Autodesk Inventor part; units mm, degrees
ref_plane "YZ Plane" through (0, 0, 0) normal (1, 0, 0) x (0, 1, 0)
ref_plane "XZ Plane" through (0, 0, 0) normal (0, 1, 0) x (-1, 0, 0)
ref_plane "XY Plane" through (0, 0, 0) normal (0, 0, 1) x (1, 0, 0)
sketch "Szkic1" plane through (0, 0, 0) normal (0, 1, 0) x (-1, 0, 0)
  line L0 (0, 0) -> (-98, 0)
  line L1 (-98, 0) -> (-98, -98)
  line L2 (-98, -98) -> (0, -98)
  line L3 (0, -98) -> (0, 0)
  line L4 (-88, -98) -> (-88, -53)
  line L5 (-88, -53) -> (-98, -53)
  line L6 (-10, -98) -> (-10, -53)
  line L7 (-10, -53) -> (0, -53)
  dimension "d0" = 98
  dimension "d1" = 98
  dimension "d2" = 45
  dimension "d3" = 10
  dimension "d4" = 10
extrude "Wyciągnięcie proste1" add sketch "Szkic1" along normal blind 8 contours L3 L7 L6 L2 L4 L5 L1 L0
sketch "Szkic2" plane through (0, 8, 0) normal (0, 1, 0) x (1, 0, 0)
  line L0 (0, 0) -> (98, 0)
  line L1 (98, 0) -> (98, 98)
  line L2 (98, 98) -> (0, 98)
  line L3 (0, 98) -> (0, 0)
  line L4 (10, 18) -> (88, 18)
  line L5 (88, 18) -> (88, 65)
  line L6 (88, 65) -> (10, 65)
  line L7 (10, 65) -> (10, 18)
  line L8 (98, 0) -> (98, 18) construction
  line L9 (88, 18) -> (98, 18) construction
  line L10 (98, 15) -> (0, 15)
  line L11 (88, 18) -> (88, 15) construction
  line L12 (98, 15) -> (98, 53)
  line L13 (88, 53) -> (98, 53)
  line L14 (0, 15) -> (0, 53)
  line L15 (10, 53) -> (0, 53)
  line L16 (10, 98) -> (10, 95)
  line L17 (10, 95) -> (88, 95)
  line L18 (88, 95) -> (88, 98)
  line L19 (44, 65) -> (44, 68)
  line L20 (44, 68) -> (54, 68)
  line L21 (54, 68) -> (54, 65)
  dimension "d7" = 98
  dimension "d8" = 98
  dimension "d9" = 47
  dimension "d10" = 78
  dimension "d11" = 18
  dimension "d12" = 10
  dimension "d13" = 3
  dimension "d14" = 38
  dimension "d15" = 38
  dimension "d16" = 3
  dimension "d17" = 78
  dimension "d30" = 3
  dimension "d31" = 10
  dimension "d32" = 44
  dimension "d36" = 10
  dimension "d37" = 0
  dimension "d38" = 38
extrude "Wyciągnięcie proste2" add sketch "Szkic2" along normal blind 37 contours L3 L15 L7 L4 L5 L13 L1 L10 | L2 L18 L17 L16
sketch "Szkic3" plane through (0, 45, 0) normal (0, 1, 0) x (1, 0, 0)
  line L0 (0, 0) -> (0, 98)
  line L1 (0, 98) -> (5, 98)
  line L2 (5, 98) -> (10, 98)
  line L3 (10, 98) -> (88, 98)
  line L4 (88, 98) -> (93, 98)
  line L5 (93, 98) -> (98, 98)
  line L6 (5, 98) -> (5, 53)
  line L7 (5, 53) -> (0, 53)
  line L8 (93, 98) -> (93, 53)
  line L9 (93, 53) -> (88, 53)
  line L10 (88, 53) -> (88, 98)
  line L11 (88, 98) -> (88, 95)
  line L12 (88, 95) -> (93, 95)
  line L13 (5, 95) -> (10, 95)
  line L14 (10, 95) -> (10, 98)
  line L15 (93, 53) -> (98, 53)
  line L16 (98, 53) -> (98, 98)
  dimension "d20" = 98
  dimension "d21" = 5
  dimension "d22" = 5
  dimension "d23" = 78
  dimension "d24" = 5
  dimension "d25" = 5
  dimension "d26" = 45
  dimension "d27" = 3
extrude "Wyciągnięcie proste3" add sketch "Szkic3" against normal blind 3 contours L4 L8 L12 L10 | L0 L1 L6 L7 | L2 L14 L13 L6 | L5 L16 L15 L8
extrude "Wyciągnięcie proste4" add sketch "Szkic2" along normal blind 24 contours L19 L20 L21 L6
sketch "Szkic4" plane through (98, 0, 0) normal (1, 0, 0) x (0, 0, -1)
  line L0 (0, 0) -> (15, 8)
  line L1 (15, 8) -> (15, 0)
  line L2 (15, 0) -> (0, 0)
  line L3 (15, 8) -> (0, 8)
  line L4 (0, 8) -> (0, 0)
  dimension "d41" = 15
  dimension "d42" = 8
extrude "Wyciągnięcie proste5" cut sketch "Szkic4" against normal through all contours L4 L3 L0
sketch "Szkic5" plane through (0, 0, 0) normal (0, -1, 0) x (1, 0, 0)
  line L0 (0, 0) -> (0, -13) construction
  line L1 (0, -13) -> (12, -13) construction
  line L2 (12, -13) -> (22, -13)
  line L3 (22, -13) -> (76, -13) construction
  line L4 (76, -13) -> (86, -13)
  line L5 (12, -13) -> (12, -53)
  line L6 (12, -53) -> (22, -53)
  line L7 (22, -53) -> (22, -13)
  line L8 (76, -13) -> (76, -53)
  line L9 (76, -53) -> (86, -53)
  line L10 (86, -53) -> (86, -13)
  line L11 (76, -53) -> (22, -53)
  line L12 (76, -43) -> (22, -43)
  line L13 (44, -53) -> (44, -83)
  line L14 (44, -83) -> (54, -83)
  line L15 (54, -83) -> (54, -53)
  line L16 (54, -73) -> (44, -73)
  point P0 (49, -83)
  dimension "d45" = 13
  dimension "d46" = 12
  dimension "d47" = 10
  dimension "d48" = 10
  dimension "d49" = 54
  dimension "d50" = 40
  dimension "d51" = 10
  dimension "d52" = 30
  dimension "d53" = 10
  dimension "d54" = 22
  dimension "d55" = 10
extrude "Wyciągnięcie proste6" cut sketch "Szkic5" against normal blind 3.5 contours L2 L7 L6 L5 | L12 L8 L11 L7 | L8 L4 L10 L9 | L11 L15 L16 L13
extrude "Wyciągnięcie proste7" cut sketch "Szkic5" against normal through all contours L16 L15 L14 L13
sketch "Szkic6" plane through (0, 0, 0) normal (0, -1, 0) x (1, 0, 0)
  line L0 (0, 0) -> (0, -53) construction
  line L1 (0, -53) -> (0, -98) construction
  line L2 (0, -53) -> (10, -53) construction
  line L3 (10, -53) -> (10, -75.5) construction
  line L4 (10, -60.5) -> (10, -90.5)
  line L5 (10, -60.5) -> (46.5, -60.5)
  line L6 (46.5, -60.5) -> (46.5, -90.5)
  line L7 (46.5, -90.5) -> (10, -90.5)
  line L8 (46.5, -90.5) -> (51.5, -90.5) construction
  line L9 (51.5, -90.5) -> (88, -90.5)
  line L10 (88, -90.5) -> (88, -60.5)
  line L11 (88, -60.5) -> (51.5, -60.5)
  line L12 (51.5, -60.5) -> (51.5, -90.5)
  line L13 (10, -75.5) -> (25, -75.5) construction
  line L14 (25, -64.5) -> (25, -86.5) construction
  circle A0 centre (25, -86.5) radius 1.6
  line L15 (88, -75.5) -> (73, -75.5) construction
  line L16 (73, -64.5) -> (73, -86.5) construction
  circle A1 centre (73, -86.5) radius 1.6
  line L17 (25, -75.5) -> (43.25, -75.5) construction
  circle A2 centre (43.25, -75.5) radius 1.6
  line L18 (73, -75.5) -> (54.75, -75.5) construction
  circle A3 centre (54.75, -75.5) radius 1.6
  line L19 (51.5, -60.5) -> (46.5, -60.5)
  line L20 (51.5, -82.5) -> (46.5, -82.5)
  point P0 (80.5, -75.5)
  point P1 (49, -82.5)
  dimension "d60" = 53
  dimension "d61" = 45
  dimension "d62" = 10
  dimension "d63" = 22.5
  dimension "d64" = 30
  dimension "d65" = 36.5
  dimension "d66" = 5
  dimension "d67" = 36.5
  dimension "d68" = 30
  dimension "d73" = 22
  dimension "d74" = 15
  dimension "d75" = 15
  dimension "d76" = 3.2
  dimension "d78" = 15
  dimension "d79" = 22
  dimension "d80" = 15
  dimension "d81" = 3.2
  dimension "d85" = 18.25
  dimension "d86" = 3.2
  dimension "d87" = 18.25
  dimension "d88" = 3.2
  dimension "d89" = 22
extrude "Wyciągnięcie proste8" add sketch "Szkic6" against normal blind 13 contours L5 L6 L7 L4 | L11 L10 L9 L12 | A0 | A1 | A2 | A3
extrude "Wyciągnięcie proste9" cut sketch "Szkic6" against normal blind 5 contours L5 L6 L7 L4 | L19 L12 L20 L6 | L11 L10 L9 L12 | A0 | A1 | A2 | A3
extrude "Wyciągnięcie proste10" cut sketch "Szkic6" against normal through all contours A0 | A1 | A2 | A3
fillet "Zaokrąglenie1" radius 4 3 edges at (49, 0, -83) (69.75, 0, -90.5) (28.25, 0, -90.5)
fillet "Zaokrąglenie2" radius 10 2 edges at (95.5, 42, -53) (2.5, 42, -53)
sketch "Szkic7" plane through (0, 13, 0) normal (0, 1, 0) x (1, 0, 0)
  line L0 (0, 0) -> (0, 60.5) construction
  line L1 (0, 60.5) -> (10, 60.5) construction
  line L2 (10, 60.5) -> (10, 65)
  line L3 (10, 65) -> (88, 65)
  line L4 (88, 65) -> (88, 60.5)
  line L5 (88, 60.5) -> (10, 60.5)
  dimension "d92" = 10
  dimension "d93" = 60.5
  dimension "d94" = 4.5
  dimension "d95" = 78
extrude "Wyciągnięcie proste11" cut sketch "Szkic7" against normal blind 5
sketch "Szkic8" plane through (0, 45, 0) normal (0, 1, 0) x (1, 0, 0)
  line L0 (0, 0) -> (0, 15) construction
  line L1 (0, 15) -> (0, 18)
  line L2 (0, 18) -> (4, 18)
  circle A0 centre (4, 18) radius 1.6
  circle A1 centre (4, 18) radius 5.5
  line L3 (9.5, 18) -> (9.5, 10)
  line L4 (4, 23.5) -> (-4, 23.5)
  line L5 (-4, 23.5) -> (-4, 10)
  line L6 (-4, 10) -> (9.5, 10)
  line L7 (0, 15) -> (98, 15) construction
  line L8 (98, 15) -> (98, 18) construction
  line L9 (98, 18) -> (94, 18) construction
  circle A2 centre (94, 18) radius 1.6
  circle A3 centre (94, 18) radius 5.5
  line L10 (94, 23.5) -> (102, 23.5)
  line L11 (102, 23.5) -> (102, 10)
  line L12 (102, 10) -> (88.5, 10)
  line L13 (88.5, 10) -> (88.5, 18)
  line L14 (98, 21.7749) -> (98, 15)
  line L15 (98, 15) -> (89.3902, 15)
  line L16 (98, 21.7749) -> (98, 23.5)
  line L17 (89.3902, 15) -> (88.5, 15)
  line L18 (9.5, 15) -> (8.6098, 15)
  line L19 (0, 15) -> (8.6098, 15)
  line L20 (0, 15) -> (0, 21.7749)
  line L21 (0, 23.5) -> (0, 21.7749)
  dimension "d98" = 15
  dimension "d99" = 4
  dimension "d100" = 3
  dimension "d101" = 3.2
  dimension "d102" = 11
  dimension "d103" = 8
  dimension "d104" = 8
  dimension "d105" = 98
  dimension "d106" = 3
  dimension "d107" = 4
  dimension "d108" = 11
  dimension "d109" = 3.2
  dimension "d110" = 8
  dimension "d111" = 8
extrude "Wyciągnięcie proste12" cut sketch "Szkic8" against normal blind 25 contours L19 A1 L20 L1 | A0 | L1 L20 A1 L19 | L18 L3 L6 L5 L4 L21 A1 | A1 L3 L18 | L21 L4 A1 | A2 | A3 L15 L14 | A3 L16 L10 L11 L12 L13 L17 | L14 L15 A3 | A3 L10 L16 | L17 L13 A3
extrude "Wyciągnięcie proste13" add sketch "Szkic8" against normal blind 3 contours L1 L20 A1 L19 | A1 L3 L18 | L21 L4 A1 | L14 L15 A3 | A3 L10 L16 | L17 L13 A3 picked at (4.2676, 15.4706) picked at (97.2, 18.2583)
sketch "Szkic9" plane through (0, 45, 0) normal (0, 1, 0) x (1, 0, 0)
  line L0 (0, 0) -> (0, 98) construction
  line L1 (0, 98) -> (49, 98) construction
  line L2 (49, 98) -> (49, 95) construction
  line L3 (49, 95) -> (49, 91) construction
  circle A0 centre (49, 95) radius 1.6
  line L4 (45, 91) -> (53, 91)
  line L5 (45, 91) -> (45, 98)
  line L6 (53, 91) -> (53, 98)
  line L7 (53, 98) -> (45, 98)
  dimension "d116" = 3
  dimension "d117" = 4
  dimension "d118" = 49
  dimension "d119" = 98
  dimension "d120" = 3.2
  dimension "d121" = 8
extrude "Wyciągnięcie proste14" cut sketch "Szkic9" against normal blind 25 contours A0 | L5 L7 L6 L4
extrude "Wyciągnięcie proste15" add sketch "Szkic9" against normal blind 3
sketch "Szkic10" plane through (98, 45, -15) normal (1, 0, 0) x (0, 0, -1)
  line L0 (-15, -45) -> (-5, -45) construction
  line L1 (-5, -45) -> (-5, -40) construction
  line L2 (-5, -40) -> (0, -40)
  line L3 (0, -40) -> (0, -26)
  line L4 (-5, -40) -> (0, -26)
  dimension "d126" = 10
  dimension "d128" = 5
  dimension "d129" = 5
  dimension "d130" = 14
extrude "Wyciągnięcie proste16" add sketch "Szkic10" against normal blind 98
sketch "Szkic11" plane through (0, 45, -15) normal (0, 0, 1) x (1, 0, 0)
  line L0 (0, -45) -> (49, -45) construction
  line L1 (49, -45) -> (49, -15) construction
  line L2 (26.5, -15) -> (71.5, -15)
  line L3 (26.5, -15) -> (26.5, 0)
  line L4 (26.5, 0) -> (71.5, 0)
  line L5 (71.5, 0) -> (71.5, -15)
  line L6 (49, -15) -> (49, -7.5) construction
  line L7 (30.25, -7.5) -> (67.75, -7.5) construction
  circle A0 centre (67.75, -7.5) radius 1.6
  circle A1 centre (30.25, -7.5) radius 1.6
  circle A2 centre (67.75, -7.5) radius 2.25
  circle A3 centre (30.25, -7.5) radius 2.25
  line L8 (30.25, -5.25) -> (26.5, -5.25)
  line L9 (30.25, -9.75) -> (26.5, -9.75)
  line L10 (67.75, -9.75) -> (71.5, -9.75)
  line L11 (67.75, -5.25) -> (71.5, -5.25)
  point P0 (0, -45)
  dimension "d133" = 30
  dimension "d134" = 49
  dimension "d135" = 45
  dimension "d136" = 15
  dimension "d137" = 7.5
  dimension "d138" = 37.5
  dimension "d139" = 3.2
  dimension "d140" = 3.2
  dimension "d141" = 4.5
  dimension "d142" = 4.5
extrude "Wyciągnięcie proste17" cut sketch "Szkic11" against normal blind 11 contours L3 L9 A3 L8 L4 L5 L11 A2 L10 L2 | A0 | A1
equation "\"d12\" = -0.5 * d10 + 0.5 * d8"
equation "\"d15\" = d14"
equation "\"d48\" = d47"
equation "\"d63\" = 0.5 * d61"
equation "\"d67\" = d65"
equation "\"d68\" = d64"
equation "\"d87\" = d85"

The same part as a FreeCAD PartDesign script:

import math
import FreeCAD as App
import Part
import Sketcher


def edges_at(feature, points):
    """Names of the edges that pass closest to the given points."""
    edges = feature.Shape.Edges
    near = lambda p: min(range(len(edges)), key=lambda i: edges[i].distToShape(Part.Vertex(*p))[0])
    return sorted({f"Edge{near(p) + 1}" for p in points})


def add_polygon(sketch, points):
    """Adds a closed chain of lines whose ends are joined by coincident constraints."""
    first, n = sketch.GeometryCount, len(points)
    for a, b in zip(points, points[1:] + points[:1]):
        sketch.addGeometry(Part.LineSegment(App.Vector(*a, 0), App.Vector(*b, 0)), False)
    for i in range(n):
        sketch.addConstraint(Sketcher.Constraint("Coincident", first + i, 2, first + (i + 1) % n, 1))

doc = App.newDocument("Part")
body = doc.addObject("PartDesign::Body", "Body")

# Sketch on XZ plane
sketch1 = body.newObject("Sketcher::SketchObject", "Sketch")
sketch1.AttachmentSupport = (doc.getObject("XZ_Plane"), [""])
sketch1.MapMode = "FlatFace"
add_polygon(sketch1, [(0, -53), (0, 0), (98, 0), (98, -53), (88, -53), (88, -98), (10, -98), (10, -53)])  # lines 0-7
sketch1.addConstraint([
    Sketcher.Constraint("Vertical", 0),
    Sketcher.Constraint("Horizontal", 1),
    Sketcher.Constraint("Vertical", 2),
    Sketcher.Constraint("Horizontal", 3),
    Sketcher.Constraint("Vertical", 4),
    Sketcher.Constraint("Horizontal", 5),
    Sketcher.Constraint("Vertical", 6),
    Sketcher.Constraint("Horizontal", 7),
    Sketcher.Constraint("Coincident", 0, 2, -1, 1),
    Sketcher.Constraint("Horizontal", 3, 2, 6, 2),
    Sketcher.Constraint("Equal", 3, 7),
    Sketcher.Constraint("DistanceX", 1, 1, 1, 2, 98.0),
    Sketcher.Constraint("DistanceX", 3, 2, 3, 1, 10.0),
    Sketcher.Constraint("DistanceY", 4, 2, 4, 1, 45.0),
    Sketcher.Constraint("DistanceY", 4, 2, -1, 1, 98.0),
])
pad1 = body.newObject("PartDesign::Pad", "Pad")
pad1.Profile = sketch1
pad1.Length = 8
pad1.Reversed = True

# Sketch on XZ plane
sketch2 = body.newObject("Sketcher::SketchObject", "Sketch001")
sketch2.AttachmentSupport = (doc.getObject("XZ_Plane"), [""])
sketch2.MapMode = "FlatFace"
sketch2.AttachmentOffset = App.Placement(App.Vector(0, 0, -8), App.Rotation())
add_polygon(sketch2, [(0, -53), (0, -15), (98, -15), (98, -53), (88, -53), (88, -18), (10, -18), (10, -53)])  # lines 0-7
add_polygon(sketch2, [(88, -98), (10, -98), (10, -95), (88, -95)])  # lines 8-11
sketch2.addConstraint([
    Sketcher.Constraint("Vertical", 0),
    Sketcher.Constraint("Horizontal", 1),
    Sketcher.Constraint("Vertical", 2),
    Sketcher.Constraint("Horizontal", 3),
    Sketcher.Constraint("Vertical", 4),
    Sketcher.Constraint("Horizontal", 5),
    Sketcher.Constraint("Vertical", 6),
    Sketcher.Constraint("Horizontal", 7),
    Sketcher.Constraint("Horizontal", 8),
    Sketcher.Constraint("Vertical", 9),
    Sketcher.Constraint("Horizontal", 10),
    Sketcher.Constraint("Vertical", 11),
    Sketcher.Constraint("PointOnObject", 0, 2, -2),
    Sketcher.Constraint("Horizontal", 3, 2, 6, 2),
    Sketcher.Constraint("Vertical", 6, 2, 8, 2),
    Sketcher.Constraint("Vertical", 4, 2, 10, 2),
    Sketcher.Constraint("Equal", 3, 7),
    Sketcher.Constraint("DistanceX", 1, 1, 1, 2, 98.0),
    Sketcher.Constraint("DistanceX", 3, 2, 3, 1, 10.0),
    Sketcher.Constraint("DistanceY", 0, 1, 0, 2, 38.0),
    Sketcher.Constraint("DistanceY", 9, 1, 9, 2, 3.0),
    Sketcher.Constraint("DistanceY", 4, 2, -1, 1, 18.0),
    Sketcher.Constraint("DistanceY", 8, 2, -1, 1, 98.0),
    Sketcher.Constraint("DistanceY", 4, 2, 1, 2, 3.0),
])
pad2 = body.newObject("PartDesign::Pad", "Pad001")
pad2.Profile = sketch2
pad2.Length = 37
pad2.Reversed = True

# Sketch on XZ plane
sketch3 = body.newObject("Sketcher::SketchObject", "Sketch002")
sketch3.AttachmentSupport = (doc.getObject("XZ_Plane"), [""])
sketch3.MapMode = "FlatFace"
sketch3.AttachmentOffset = App.Placement(App.Vector(0, 0, -45), App.Rotation())
add_polygon(sketch3, [(88, -98), (88, -95), (93, -95), (93, -53), (98, -53), (98, -98)])  # lines 0-5
add_polygon(sketch3, [(0, -98), (0, -53), (5, -53), (5, -95), (10, -95), (10, -98)])  # lines 6-11
sketch3.addConstraint([
    Sketcher.Constraint("Vertical", 0),
    Sketcher.Constraint("Horizontal", 1),
    Sketcher.Constraint("Vertical", 2),
    Sketcher.Constraint("Horizontal", 3),
    Sketcher.Constraint("Vertical", 4),
    Sketcher.Constraint("Horizontal", 5),
    Sketcher.Constraint("Vertical", 6),
    Sketcher.Constraint("Horizontal", 7),
    Sketcher.Constraint("Vertical", 8),
    Sketcher.Constraint("Horizontal", 9),
    Sketcher.Constraint("Vertical", 10),
    Sketcher.Constraint("Horizontal", 11),
    Sketcher.Constraint("PointOnObject", 6, 2, -2),
    Sketcher.Constraint("Horizontal", 3, 2, 6, 2),
    Sketcher.Constraint("Horizontal", 1, 2, 8, 2),
    Sketcher.Constraint("Horizontal", 5, 2, 10, 2),
    Sketcher.Constraint("Equal", 1, 3),
    Sketcher.Constraint("Equal", 3, 7),
    Sketcher.Constraint("Equal", 7, 9),
    Sketcher.Constraint("DistanceX", 1, 1, 1, 2, 5.0),
    Sketcher.Constraint("DistanceY", 0, 1, 0, 2, 3.0),
    Sketcher.Constraint("DistanceY", 4, 2, 4, 1, 45.0),
    Sketcher.Constraint("DistanceX", -1, 1, 3, 2, 98.0),
    Sketcher.Constraint("DistanceY", 4, 2, -1, 1, 98.0),
])
pad3 = body.newObject("PartDesign::Pad", "Pad002")
pad3.Profile = sketch3
pad3.Length = 3

# Sketch on XZ plane
sketch4 = body.newObject("Sketcher::SketchObject", "Sketch003")
sketch4.AttachmentSupport = (doc.getObject("XZ_Plane"), [""])
sketch4.MapMode = "FlatFace"
sketch4.AttachmentOffset = App.Placement(App.Vector(0, 0, -8), App.Rotation())
add_polygon(sketch4, [(44, -68), (44, -65), (54, -65), (54, -68)])  # lines 0-3
sketch4.addConstraint([
    Sketcher.Constraint("Vertical", 0),
    Sketcher.Constraint("Horizontal", 1),
    Sketcher.Constraint("Vertical", 2),
    Sketcher.Constraint("Horizontal", 3),
    Sketcher.Constraint("DistanceX", 1, 1, 1, 2, 10.0),
    Sketcher.Constraint("DistanceY", 0, 1, 0, 2, 3.0),
    Sketcher.Constraint("DistanceX", -1, 1, 0, 2, 44.0),
    Sketcher.Constraint("DistanceY", 0, 2, -1, 1, 65.0),
])
pad4 = body.newObject("PartDesign::Pad", "Pad003")
pad4.Profile = sketch4
pad4.Length = 24
pad4.Reversed = True

# Sketch on YZ plane
sketch5 = body.newObject("Sketcher::SketchObject", "Sketch004")
sketch5.AttachmentSupport = (doc.getObject("YZ_Plane"), [""])
sketch5.MapMode = "FlatFace"
sketch5.AttachmentOffset = App.Placement(App.Vector(0, 0, 98), App.Rotation())
add_polygon(sketch5, [(8, 0), (0, 0), (8, -15)])  # lines 0-2
sketch5.addConstraint([
    Sketcher.Constraint("Horizontal", 0),
    Sketcher.Constraint("Vertical", 2),
    Sketcher.Constraint("Coincident", 0, 2, -1, 1),
    Sketcher.Constraint("DistanceX", 0, 2, 0, 1, 8.0),
    Sketcher.Constraint("DistanceY", 2, 1, 2, 2, 15.0),
])
pocket1 = body.newObject("PartDesign::Pocket", "Pocket")
pocket1.Profile = sketch5
pocket1.Type = "ThroughAll"

# Sketch on XZ plane
sketch6 = body.newObject("Sketcher::SketchObject", "Sketch005")
sketch6.AttachmentSupport = (doc.getObject("XZ_Plane"), [""])
sketch6.MapMode = "FlatFace"
add_polygon(sketch6, [(22, -13), (12, -13), (12, -53), (44, -53), (44, -73), (54, -73), (54, -53), (86, -53), (86, -13), (76, -13), (76, -43), (22, -43)])  # lines 0-11
sketch6.addConstraint([
    Sketcher.Constraint("Horizontal", 0),
    Sketcher.Constraint("Vertical", 1),
    Sketcher.Constraint("Horizontal", 2),
    Sketcher.Constraint("Vertical", 3),
    Sketcher.Constraint("Horizontal", 4),
    Sketcher.Constraint("Vertical", 5),
    Sketcher.Constraint("Horizontal", 6),
    Sketcher.Constraint("Vertical", 7),
    Sketcher.Constraint("Horizontal", 8),
    Sketcher.Constraint("Vertical", 9),
    Sketcher.Constraint("Horizontal", 10),
    Sketcher.Constraint("Vertical", 11),
    Sketcher.Constraint("Horizontal", 2, 2, 5, 2),
    Sketcher.Constraint("Horizontal", 0, 2, 7, 2),
    Sketcher.Constraint("Equal", 0, 4),
    Sketcher.Constraint("Equal", 2, 6),
    Sketcher.Constraint("Equal", 4, 8),
    Sketcher.Constraint("DistanceX", 0, 2, 0, 1, 10.0),
    Sketcher.Constraint("DistanceX", 10, 2, 10, 1, 54.0),
    Sketcher.Constraint("DistanceY", 1, 2, 1, 1, 40.0),
    Sketcher.Constraint("DistanceY", 9, 2, 9, 1, 30.0),
    Sketcher.Constraint("DistanceX", -1, 1, 0, 2, 12.0),
    Sketcher.Constraint("DistanceY", 0, 2, -1, 1, 13.0),
    Sketcher.Constraint("DistanceY", 3, 2, 10, 2, 30.0),
])
pocket2 = body.newObject("PartDesign::Pocket", "Pocket001")
pocket2.Profile = sketch6
pocket2.Length = 3.5

# Sketch on XZ plane
sketch7 = body.newObject("Sketcher::SketchObject", "Sketch006")
sketch7.AttachmentSupport = (doc.getObject("XZ_Plane"), [""])
sketch7.MapMode = "FlatFace"
add_polygon(sketch7, [(54, -73), (44, -73), (44, -83), (54, -83)])  # lines 0-3
sketch7.addConstraint([
    Sketcher.Constraint("Horizontal", 0),
    Sketcher.Constraint("Vertical", 1),
    Sketcher.Constraint("Horizontal", 2),
    Sketcher.Constraint("Vertical", 3),
    Sketcher.Constraint("Equal", 2, 1),
    Sketcher.Constraint("DistanceX", 0, 2, 0, 1, 10.0),
    Sketcher.Constraint("DistanceX", -1, 1, 2, 2, 54.0),
    Sketcher.Constraint("DistanceY", 0, 2, -1, 1, 73.0),
])
pocket3 = body.newObject("PartDesign::Pocket", "Pocket002")
pocket3.Profile = sketch7
pocket3.Type = "ThroughAll"

# Sketch on XZ plane
sketch8 = body.newObject("Sketcher::SketchObject", "Sketch007")
sketch8.AttachmentSupport = (doc.getObject("XZ_Plane"), [""])
sketch8.MapMode = "FlatFace"
add_polygon(sketch8, [(46, -60), (10, -60), (10, -90), (46, -90)])  # lines 0-3
add_polygon(sketch8, [(88, -60), (52, -60), (52, -90), (88, -90)])  # lines 4-7
sketch8.addConstraint([
    Sketcher.Constraint("Horizontal", 0),
    Sketcher.Constraint("Vertical", 1),
    Sketcher.Constraint("Horizontal", 2),
    Sketcher.Constraint("Vertical", 3),
    Sketcher.Constraint("Horizontal", 4),
    Sketcher.Constraint("Vertical", 5),
    Sketcher.Constraint("Horizontal", 6),
    Sketcher.Constraint("Vertical", 7),
    Sketcher.Constraint("Horizontal", 3, 2, 4, 2),
    Sketcher.Constraint("Horizontal", 2, 2, 5, 2),
    Sketcher.Constraint("Equal", 2, 4),
    Sketcher.Constraint("DistanceY", 1, 2, 1, 1, 30.0),
    Sketcher.Constraint("DistanceX", 0, 2, 0, 1, 36.5),
    Sketcher.Constraint("DistanceX", -1, 1, 0, 2, 10.0),
    Sketcher.Constraint("DistanceX", 3, 2, 4, 2, 5.0),
    Sketcher.Constraint("DistanceY", 0, 2, -1, 1, 60.5),
])
pad5 = body.newObject("PartDesign::Pad", "Pad004")
pad5.Profile = sketch8
pad5.Length = 13
pad5.Reversed = True

# Sketch on XZ plane
sketch9 = body.newObject("Sketcher::SketchObject", "Sketch008")
sketch9.AttachmentSupport = (doc.getObject("XZ_Plane"), [""])
sketch9.MapMode = "FlatFace"
add_polygon(sketch9, [(10, -60), (10, -90), (46, -90), (46, -82), (52, -82), (52, -90), (88, -90), (88, -60)])  # lines 0-7
sketch9.addConstraint([
    Sketcher.Constraint("Vertical", 0),
    Sketcher.Constraint("Horizontal", 1),
    Sketcher.Constraint("Vertical", 2),
    Sketcher.Constraint("Horizontal", 3),
    Sketcher.Constraint("Vertical", 4),
    Sketcher.Constraint("Horizontal", 5),
    Sketcher.Constraint("Vertical", 6),
    Sketcher.Constraint("Horizontal", 7),
    Sketcher.Constraint("Horizontal", 1, 2, 4, 2),
    Sketcher.Constraint("Equal", 1, 5),
    Sketcher.Constraint("DistanceX", 3, 1, 3, 2, 5.0),
    Sketcher.Constraint("DistanceY", 0, 2, 0, 1, 30.0),
    Sketcher.Constraint("DistanceX", 1, 1, 1, 2, 36.5),
    Sketcher.Constraint("DistanceX", -1, 1, 0, 2, 10.0),
    Sketcher.Constraint("DistanceY", 3, 2, 6, 2, 22.0),
    Sketcher.Constraint("DistanceY", 0, 2, -1, 1, 90.5),
])
pocket4 = body.newObject("PartDesign::Pocket", "Pocket003")
pocket4.Profile = sketch9
pocket4.Length = 5

# Sketch on XZ plane
sketch10 = body.newObject("Sketcher::SketchObject", "Sketch009")
sketch10.AttachmentSupport = (doc.getObject("XZ_Plane"), [""])
sketch10.MapMode = "FlatFace"
sketch10.addGeometry([
    Part.Circle(App.Vector(25, -86.5, 0), App.Vector(0, 0, 1), 1.6),
    Part.Circle(App.Vector(73, -86.5, 0), App.Vector(0, 0, 1), 1.6),
    Part.Circle(App.Vector(43.2, -75.5, 0), App.Vector(0, 0, 1), 1.6),
    Part.Circle(App.Vector(54.8, -75.5, 0), App.Vector(0, 0, 1), 1.6),
], False)
sketch10.addConstraint([
    Sketcher.Constraint("Equal", 0, 1),
    Sketcher.Constraint("Equal", 1, 2),
    Sketcher.Constraint("Equal", 2, 3),
    Sketcher.Constraint("Horizontal", 0, 3, 1, 3),
    Sketcher.Constraint("Horizontal", 2, 3, 3, 3),
    Sketcher.Constraint("Diameter", 0, 3.2),
    Sketcher.Constraint("DistanceX", 0, 3, 2, 3, 18.25),
    Sketcher.Constraint("DistanceX", 3, 3, 1, 3, 18.25),
    Sketcher.Constraint("DistanceX", -1, 1, 0, 3, 25.0),
    Sketcher.Constraint("DistanceX", -1, 1, 1, 3, 73.0),
    Sketcher.Constraint("DistanceY", 0, 3, 2, 3, 11.0),
    Sketcher.Constraint("DistanceY", 0, 3, -1, 1, 86.5),
])
pocket5 = body.newObject("PartDesign::Pocket", "Pocket004")
pocket5.Profile = sketch10
pocket5.Type = "ThroughAll"
doc.recompute()

fillet = body.newObject("PartDesign::Fillet", "Fillet")
fillet.Base = (pocket5, edges_at(pocket5, [(49, 0, -83), (69.75, 0, -90.5), (28.25, 0, -90.5)]))
fillet.Radius = 4
doc.recompute()

fillet2 = body.newObject("PartDesign::Fillet", "Fillet001")
fillet2.Base = (fillet, edges_at(fillet, [(95.5, 42, -53), (2.5, 42, -53)]))
fillet2.Radius = 10

# Sketch on XZ plane
sketch11 = body.newObject("Sketcher::SketchObject", "Sketch010")
sketch11.AttachmentSupport = (doc.getObject("XZ_Plane"), [""])
sketch11.MapMode = "FlatFace"
sketch11.AttachmentOffset = App.Placement(App.Vector(0, 0, -13), App.Rotation())
add_polygon(sketch11, [(10, -65), (10, -60.5), (88, -60.5), (88, -65)])  # lines 0-3
sketch11.addConstraint([
    Sketcher.Constraint("Vertical", 0),
    Sketcher.Constraint("Horizontal", 1),
    Sketcher.Constraint("Vertical", 2),
    Sketcher.Constraint("Horizontal", 3),
    Sketcher.Constraint("DistanceX", 1, 1, 1, 2, 78.0),
    Sketcher.Constraint("DistanceY", 0, 1, 0, 2, 4.5),
    Sketcher.Constraint("DistanceX", -1, 1, 0, 2, 10.0),
    Sketcher.Constraint("DistanceY", 0, 2, -1, 1, 60.5),
])
pocket6 = body.newObject("PartDesign::Pocket", "Pocket005")
pocket6.Profile = sketch11
pocket6.Length = 5
pocket6.Reversed = True

# Sketch on XZ plane
sketch12 = body.newObject("Sketcher::SketchObject", "Sketch011")
sketch12.AttachmentSupport = (doc.getObject("XZ_Plane"), [""])
sketch12.MapMode = "FlatFace"
sketch12.AttachmentOffset = App.Placement(App.Vector(0, 0, -45), App.Rotation())
sketch12.addGeometry([
    Part.ArcOfCircle(Part.Circle(App.Vector(4, -18, 0), App.Vector(0, 0, 1), 6), math.radians(-90), math.radians(0)),  # 0
    Part.LineSegment(App.Vector(4, -24, 0), App.Vector(-4, -24, 0)),  # 1
    Part.LineSegment(App.Vector(-4, -24, 0), App.Vector(-4, -10, 0)),  # 2
    Part.LineSegment(App.Vector(-4, -10, 0), App.Vector(10, -10, 0)),  # 3
    Part.LineSegment(App.Vector(10, -10, 0), App.Vector(10, -18, 0)),  # 4
    Part.ArcOfCircle(Part.Circle(App.Vector(94, -18, 0), App.Vector(0, 0, 1), 6), math.radians(180), math.radians(270)),  # 5
    Part.LineSegment(App.Vector(88, -18, 0), App.Vector(88, -10, 0)),  # 6
    Part.LineSegment(App.Vector(88, -10, 0), App.Vector(102, -10, 0)),  # 7
    Part.LineSegment(App.Vector(102, -10, 0), App.Vector(102, -24, 0)),  # 8
    Part.LineSegment(App.Vector(102, -24, 0), App.Vector(94, -24, 0)),  # 9
], False)
sketch12.addConstraint([
    Sketcher.Constraint("Tangent", 0, 1, 1, 1),
    Sketcher.Constraint("Coincident", 1, 2, 2, 1),
    Sketcher.Constraint("Coincident", 2, 2, 3, 1),
    Sketcher.Constraint("Coincident", 3, 2, 4, 1),
    Sketcher.Constraint("Tangent", 4, 2, 0, 2),
    Sketcher.Constraint("Tangent", 5, 1, 6, 1),
    Sketcher.Constraint("Coincident", 6, 2, 7, 1),
    Sketcher.Constraint("Coincident", 7, 2, 8, 1),
    Sketcher.Constraint("Coincident", 8, 2, 9, 1),
    Sketcher.Constraint("Tangent", 9, 2, 5, 2),
    Sketcher.Constraint("Horizontal", 1),
    Sketcher.Constraint("Vertical", 2),
    Sketcher.Constraint("Horizontal", 3),
    Sketcher.Constraint("Vertical", 4),
    Sketcher.Constraint("Vertical", 6),
    Sketcher.Constraint("Horizontal", 7),
    Sketcher.Constraint("Vertical", 8),
    Sketcher.Constraint("Horizontal", 9),
    Sketcher.Constraint("Equal", 0, 5),
    Sketcher.Constraint("Horizontal", 0, 3, 5, 3),
    Sketcher.Constraint("Horizontal", 3, 2, 6, 2),
    Sketcher.Constraint("Equal", 3, 7),
    Sketcher.Constraint("Equal", 7, 2),
    Sketcher.Constraint("Radius", 0, 5.5),
    Sketcher.Constraint("DistanceX", 1, 2, 1, 1, 8.0),
    Sketcher.Constraint("DistanceX", -1, 1, 0, 3, 4.0),
    Sketcher.Constraint("DistanceX", 1, 2, 5, 3, 98.0),
    Sketcher.Constraint("DistanceY", 0, 3, -1, 1, 18.0),
])
pocket7 = body.newObject("PartDesign::Pocket", "Pocket006")
pocket7.Profile = sketch12
pocket7.Length = 25
pocket7.Reversed = True

# Sketch on XZ plane
sketch13 = body.newObject("Sketcher::SketchObject", "Sketch012")
sketch13.AttachmentSupport = (doc.getObject("XZ_Plane"), [""])
sketch13.MapMode = "FlatFace"
sketch13.AttachmentOffset = App.Placement(App.Vector(0, 0, -45), App.Rotation())
sketch13.addGeometry([
    Part.LineSegment(App.Vector(0, -18, 0), App.Vector(0, -15, 0)),  # 0
    Part.LineSegment(App.Vector(0, -15, 0), App.Vector(9.5, -15, 0)),  # 1
    Part.LineSegment(App.Vector(9.5, -15, 0), App.Vector(9.5, -18, 0)),  # 2
    Part.ArcOfCircle(Part.Circle(App.Vector(4, -18, 0), App.Vector(0, 0, 1), 5.5), math.radians(-90), math.radians(0)),  # 3
    Part.LineSegment(App.Vector(4, -23.5, 0), App.Vector(0, -23.5, 0)),  # 4
    Part.LineSegment(App.Vector(0, -23.5, 0), App.Vector(0, -18, 0)),  # 5
    Part.Circle(App.Vector(4, -18, 0), App.Vector(0, 0, 1), 1.6),  # 6
    Part.LineSegment(App.Vector(98, -15, 0), App.Vector(98, -23.5, 0)),  # 7
    Part.LineSegment(App.Vector(98, -23.5, 0), App.Vector(94, -23.5, 0)),  # 8
    Part.ArcOfCircle(Part.Circle(App.Vector(94, -18, 0), App.Vector(0, 0, 1), 5.5), math.radians(180), math.radians(270)),  # 9
    Part.LineSegment(App.Vector(88.5, -18, 0), App.Vector(88.5, -15, 0)),  # 10
    Part.LineSegment(App.Vector(88.5, -15, 0), App.Vector(98, -15, 0)),  # 11
    Part.Circle(App.Vector(94, -18, 0), App.Vector(0, 0, 1), 1.6),  # 12
], False)
sketch13.addConstraint([
    Sketcher.Constraint("Coincident", 0, 2, 1, 1),
    Sketcher.Constraint("Coincident", 1, 2, 2, 1),
    Sketcher.Constraint("Tangent", 2, 2, 3, 2),
    Sketcher.Constraint("Tangent", 3, 1, 4, 1),
    Sketcher.Constraint("Coincident", 4, 2, 5, 1),
    Sketcher.Constraint("Coincident", 5, 2, 0, 1),
    Sketcher.Constraint("Coincident", 7, 2, 8, 1),
    Sketcher.Constraint("Tangent", 8, 2, 9, 2),
    Sketcher.Constraint("Tangent", 9, 1, 10, 1),
    Sketcher.Constraint("Coincident", 10, 2, 11, 1),
    Sketcher.Constraint("Coincident", 11, 2, 7, 1),
    Sketcher.Constraint("Vertical", 0),
    Sketcher.Constraint("Horizontal", 1),
    Sketcher.Constraint("Vertical", 2),
    Sketcher.Constraint("Horizontal", 4),
    Sketcher.Constraint("Vertical", 5),
    Sketcher.Constraint("Vertical", 7),
    Sketcher.Constraint("Horizontal", 8),
    Sketcher.Constraint("Vertical", 10),
    Sketcher.Constraint("Horizontal", 11),
    Sketcher.Constraint("Coincident", 6, 3, 3, 3),
    Sketcher.Constraint("Coincident", 12, 3, 9, 3),
    Sketcher.Constraint("Equal", 3, 9),
    Sketcher.Constraint("Equal", 6, 12),
    Sketcher.Constraint("PointOnObject", 0, 2, -2),
    Sketcher.Constraint("Horizontal", 6, 3, 9, 3),
    Sketcher.Constraint("Horizontal", 2, 2, 5, 2),
    Sketcher.Constraint("Horizontal", 1, 2, 10, 2),
    Sketcher.Constraint("Equal", 4, 8),
    Sketcher.Constraint("Diameter", 6, 3.2),
    Sketcher.Constraint("Radius", 3, 5.5),
    Sketcher.Constraint("DistanceX", 4, 2, 4, 1, 4.0),
    Sketcher.Constraint("DistanceY", 0, 1, 0, 2, 3.0),
    Sketcher.Constraint("DistanceY", 0, 2, -1, 1, 15.0),
    Sketcher.Constraint("DistanceX", -1, 1, 7, 2, 98.0),
])
pad6 = body.newObject("PartDesign::Pad", "Pad005")
pad6.Profile = sketch13
pad6.Length = 3

# Sketch on XZ plane
sketch14 = body.newObject("Sketcher::SketchObject", "Sketch013")
sketch14.AttachmentSupport = (doc.getObject("XZ_Plane"), [""])
sketch14.MapMode = "FlatFace"
sketch14.AttachmentOffset = App.Placement(App.Vector(0, 0, -45), App.Rotation())
add_polygon(sketch14, [(45, -98), (45, -91), (53, -91), (53, -98)])  # lines 0-3
sketch14.addConstraint([
    Sketcher.Constraint("Vertical", 0),
    Sketcher.Constraint("Horizontal", 1),
    Sketcher.Constraint("Vertical", 2),
    Sketcher.Constraint("Horizontal", 3),
    Sketcher.Constraint("DistanceX", 1, 1, 1, 2, 8.0),
    Sketcher.Constraint("DistanceY", 2, 2, -1, 1, 98.0),
    Sketcher.Constraint("DistanceY", 0, 1, 0, 2, 7.0),
    Sketcher.Constraint("DistanceX", -1, 1, 0, 2, 45.0),
])
pocket8 = body.newObject("PartDesign::Pocket", "Pocket007")
pocket8.Profile = sketch14
pocket8.Length = 25
pocket8.Reversed = True

# Sketch on XZ plane
sketch15 = body.newObject("Sketcher::SketchObject", "Sketch014")
sketch15.AttachmentSupport = (doc.getObject("XZ_Plane"), [""])
sketch15.MapMode = "FlatFace"
sketch15.AttachmentOffset = App.Placement(App.Vector(0, 0, -45), App.Rotation())
add_polygon(sketch15, [(45, -98), (45, -91), (53, -91), (53, -98)])  # lines 0-3
sketch15.addGeometry(Part.Circle(App.Vector(49, -95, 0), App.Vector(0, 0, 1), 1.6), False)  # 4
sketch15.addConstraint([
    Sketcher.Constraint("Vertical", 0),
    Sketcher.Constraint("Horizontal", 1),
    Sketcher.Constraint("Vertical", 2),
    Sketcher.Constraint("Horizontal", 3),
    Sketcher.Constraint("Diameter", 4, 3.2),
    Sketcher.Constraint("DistanceX", 1, 1, 1, 2, 8.0),
    Sketcher.Constraint("DistanceX", -1, 1, 4, 3, 49.0),
    Sketcher.Constraint("DistanceY", 2, 2, -1, 1, 98.0),
    Sketcher.Constraint("DistanceX", 0, 2, 4, 3, 4.0),
    Sketcher.Constraint("DistanceY", 4, 3, 0, 2, 4.0),
    Sketcher.Constraint("DistanceY", 2, 2, 4, 3, 3.0),
])
pad7 = body.newObject("PartDesign::Pad", "Pad006")
pad7.Profile = sketch15
pad7.Length = 3

# Sketch on YZ plane
sketch16 = body.newObject("Sketcher::SketchObject", "Sketch015")
sketch16.AttachmentSupport = (doc.getObject("YZ_Plane"), [""])
sketch16.MapMode = "FlatFace"
sketch16.AttachmentOffset = App.Placement(App.Vector(0, 0, 98), App.Rotation())
add_polygon(sketch16, [(19, -15), (5, -10), (5, -15)])  # lines 0-2
sketch16.addConstraint([
    Sketcher.Constraint("Vertical", 1),
    Sketcher.Constraint("Horizontal", 2),
    Sketcher.Constraint("DistanceX", 2, 1, 2, 2, 14.0),
    Sketcher.Constraint("DistanceY", 1, 2, 1, 1, 5.0),
    Sketcher.Constraint("DistanceX", -1, 1, 0, 2, 5.0),
    Sketcher.Constraint("DistanceY", 0, 2, -1, 1, 10.0),
])
pad8 = body.newObject("PartDesign::Pad", "Pad007")
pad8.Profile = sketch16
pad8.Length = 98
pad8.Reversed = True

# Sketch on XY plane
sketch17 = body.newObject("Sketcher::SketchObject", "Sketch016")
sketch17.AttachmentSupport = (doc.getObject("XY_Plane"), [""])
sketch17.MapMode = "FlatFace"
sketch17.AttachmentOffset = App.Placement(App.Vector(0, 0, -15), App.Rotation())
sketch17.addGeometry([
    Part.LineSegment(App.Vector(26.5, 35.2, 0), App.Vector(26.5, 30, 0)),  # 0
    Part.LineSegment(App.Vector(26.5, 30, 0), App.Vector(71.5, 30, 0)),  # 1
    Part.LineSegment(App.Vector(71.5, 30, 0), App.Vector(71.5, 35.2, 0)),  # 2
    Part.LineSegment(App.Vector(71.5, 35.2, 0), App.Vector(67.8, 35.2, 0)),  # 3
    Part.ArcOfCircle(Part.Circle(App.Vector(67.8, 37.5, 0), App.Vector(0, 0, 1), 2.2), math.radians(90), math.radians(270)),  # 4
    Part.LineSegment(App.Vector(67.8, 39.8, 0), App.Vector(71.5, 39.8, 0)),  # 5
    Part.LineSegment(App.Vector(71.5, 39.8, 0), App.Vector(71.5, 45, 0)),  # 6
    Part.LineSegment(App.Vector(71.5, 45, 0), App.Vector(26.5, 45, 0)),  # 7
    Part.LineSegment(App.Vector(26.5, 45, 0), App.Vector(26.5, 39.8, 0)),  # 8
    Part.LineSegment(App.Vector(26.5, 39.8, 0), App.Vector(30.2, 39.8, 0)),  # 9
    Part.ArcOfCircle(Part.Circle(App.Vector(30.2, 37.5, 0), App.Vector(0, 0, 1), 2.2), math.radians(-90), math.radians(90)),  # 10
    Part.LineSegment(App.Vector(30.2, 35.2, 0), App.Vector(26.5, 35.2, 0)),  # 11
    Part.Circle(App.Vector(67.8, 37.5, 0), App.Vector(0, 0, 1), 1.6),  # 12
    Part.Circle(App.Vector(30.2, 37.5, 0), App.Vector(0, 0, 1), 1.6),  # 13
], False)
sketch17.addConstraint([
    Sketcher.Constraint("Coincident", 0, 2, 1, 1),
    Sketcher.Constraint("Coincident", 1, 2, 2, 1),
    Sketcher.Constraint("Coincident", 2, 2, 3, 1),
    Sketcher.Constraint("Tangent", 3, 2, 4, 2),
    Sketcher.Constraint("Tangent", 4, 1, 5, 1),
    Sketcher.Constraint("Coincident", 5, 2, 6, 1),
    Sketcher.Constraint("Coincident", 6, 2, 7, 1),
    Sketcher.Constraint("Coincident", 7, 2, 8, 1),
    Sketcher.Constraint("Coincident", 8, 2, 9, 1),
    Sketcher.Constraint("Tangent", 9, 2, 10, 2),
    Sketcher.Constraint("Tangent", 10, 1, 11, 1),
    Sketcher.Constraint("Coincident", 11, 2, 0, 1),
    Sketcher.Constraint("Vertical", 0),
    Sketcher.Constraint("Horizontal", 1),
    Sketcher.Constraint("Vertical", 2),
    Sketcher.Constraint("Horizontal", 3),
    Sketcher.Constraint("Horizontal", 5),
    Sketcher.Constraint("Vertical", 6),
    Sketcher.Constraint("Horizontal", 7),
    Sketcher.Constraint("Vertical", 8),
    Sketcher.Constraint("Horizontal", 9),
    Sketcher.Constraint("Horizontal", 11),
    Sketcher.Constraint("Coincident", 12, 3, 4, 3),
    Sketcher.Constraint("Coincident", 13, 3, 10, 3),
    Sketcher.Constraint("Equal", 4, 10),
    Sketcher.Constraint("Equal", 12, 13),
    Sketcher.Constraint("Horizontal", 4, 3, 10, 3),
    Sketcher.Constraint("Vertical", 2, 2, 5, 2),
    Sketcher.Constraint("Vertical", 0, 2, 7, 2),
    Sketcher.Constraint("Equal", 5, 9),
    Sketcher.Constraint("Equal", 2, 6),
    Sketcher.Constraint("Diameter", 12, 3.2),
    Sketcher.Constraint("DistanceX", 1, 1, 1, 2, 45.0),
    Sketcher.Constraint("Radius", 4, 2.25),
    Sketcher.Constraint("DistanceY", -1, 1, 0, 2, 30.0),
    Sketcher.Constraint("DistanceY", -1, 1, 6, 2, 45.0),
    Sketcher.Constraint("DistanceX", 10, 3, 4, 3, 37.5),
    Sketcher.Constraint("DistanceX", -1, 1, 0, 2, 26.5),
])
pocket9 = body.newObject("PartDesign::Pocket", "Pocket008")
pocket9.Profile = sketch17
pocket9.Length = 11

doc.recompute()
